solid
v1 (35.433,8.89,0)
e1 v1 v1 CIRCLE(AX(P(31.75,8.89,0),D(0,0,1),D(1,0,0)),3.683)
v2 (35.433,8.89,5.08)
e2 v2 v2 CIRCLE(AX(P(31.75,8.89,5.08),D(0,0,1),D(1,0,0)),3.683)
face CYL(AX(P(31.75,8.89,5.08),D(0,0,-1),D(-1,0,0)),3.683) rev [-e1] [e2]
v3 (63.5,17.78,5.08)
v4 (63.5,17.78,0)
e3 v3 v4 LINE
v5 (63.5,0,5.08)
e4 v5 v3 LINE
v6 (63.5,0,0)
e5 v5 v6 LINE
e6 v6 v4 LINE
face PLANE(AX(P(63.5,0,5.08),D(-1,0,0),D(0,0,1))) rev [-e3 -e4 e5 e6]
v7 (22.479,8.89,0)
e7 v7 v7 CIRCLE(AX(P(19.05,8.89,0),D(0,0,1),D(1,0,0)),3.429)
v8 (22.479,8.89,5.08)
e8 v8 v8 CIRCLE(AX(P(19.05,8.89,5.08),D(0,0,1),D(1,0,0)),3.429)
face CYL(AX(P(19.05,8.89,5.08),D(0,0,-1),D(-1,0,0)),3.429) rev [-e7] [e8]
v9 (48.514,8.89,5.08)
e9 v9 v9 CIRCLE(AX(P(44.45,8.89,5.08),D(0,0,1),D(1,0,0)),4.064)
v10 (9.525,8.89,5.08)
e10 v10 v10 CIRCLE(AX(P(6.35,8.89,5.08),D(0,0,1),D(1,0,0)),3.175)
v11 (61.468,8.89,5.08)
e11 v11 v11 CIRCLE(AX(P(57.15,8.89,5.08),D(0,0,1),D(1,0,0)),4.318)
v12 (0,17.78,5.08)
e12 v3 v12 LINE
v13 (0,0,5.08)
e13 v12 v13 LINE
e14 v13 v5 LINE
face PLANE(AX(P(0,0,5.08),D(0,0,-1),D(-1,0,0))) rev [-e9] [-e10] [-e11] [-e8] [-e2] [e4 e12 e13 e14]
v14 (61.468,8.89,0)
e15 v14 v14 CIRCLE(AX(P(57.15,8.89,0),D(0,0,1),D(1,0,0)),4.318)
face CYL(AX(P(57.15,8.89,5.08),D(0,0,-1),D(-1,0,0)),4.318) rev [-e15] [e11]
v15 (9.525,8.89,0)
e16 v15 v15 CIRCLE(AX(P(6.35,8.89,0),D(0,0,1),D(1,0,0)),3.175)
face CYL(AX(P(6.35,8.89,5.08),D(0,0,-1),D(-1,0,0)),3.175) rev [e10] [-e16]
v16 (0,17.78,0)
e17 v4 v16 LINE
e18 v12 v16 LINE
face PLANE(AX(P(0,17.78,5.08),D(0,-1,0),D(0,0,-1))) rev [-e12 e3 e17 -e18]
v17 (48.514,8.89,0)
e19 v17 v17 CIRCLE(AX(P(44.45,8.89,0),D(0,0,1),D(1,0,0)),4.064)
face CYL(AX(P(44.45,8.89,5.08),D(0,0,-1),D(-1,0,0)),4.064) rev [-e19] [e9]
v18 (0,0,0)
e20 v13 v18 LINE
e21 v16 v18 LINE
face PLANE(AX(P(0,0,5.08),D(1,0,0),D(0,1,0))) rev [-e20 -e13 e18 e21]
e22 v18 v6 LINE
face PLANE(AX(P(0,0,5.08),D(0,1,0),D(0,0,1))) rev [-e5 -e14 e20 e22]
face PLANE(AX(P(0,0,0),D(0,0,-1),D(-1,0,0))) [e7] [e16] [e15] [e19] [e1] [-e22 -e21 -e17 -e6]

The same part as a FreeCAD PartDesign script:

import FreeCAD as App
import Part
import Sketcher

V = App.Vector
Q = App.Units.Quantity


def add_polygon(sketch, points):
    """Adds a closed chain of lines whose ends are joined by coincident constraints."""
    first, n = sketch.GeometryCount, len(points)
    for a, b in zip(points, points[1:] + points[:1]):
        sketch.addGeometry(Part.LineSegment(App.Vector(*a, 0), App.Vector(*b, 0)), False)
    for i in range(n):
        sketch.addConstraint(Sketcher.Constraint("Coincident", first + i, 2, first + (i + 1) % n, 1))

doc = App.newDocument("Part")
body = doc.addObject("PartDesign::Body", "Body")

# Sketch on XY plane
sketch1 = doc.addObject("Sketcher::SketchObject", "Sketch")
body.addObject(sketch1)
sketch1.AttachmentSupport = (doc.XY_Plane, [""])
sketch1.MapMode = "FlatFace"
add_polygon(sketch1, [(0, 17.8), (0, 0), (63.5, 0), (63.5, 17.8)])  # lines 0-3
sketch1.addGeometry(Part.Circle(V(6.3, 8.9, 0), V(0, 0, 1), 3.2), False)  # 4
sketch1.addGeometry(Part.Circle(V(19.1, 8.9, 0), V(0, 0, 1), 3.4), False)  # 5
sketch1.addGeometry(Part.Circle(V(31.8, 8.9, 0), V(0, 0, 1), 3.7), False)  # 6
sketch1.addGeometry(Part.Circle(V(44.5, 8.9, 0), V(0, 0, 1), 4.1), False)  # 7
sketch1.addGeometry(Part.Circle(V(57.1, 8.9, 0), V(0, 0, 1), 4.3), False)  # 8
sketch1.addConstraint([
    Sketcher.Constraint("Vertical", 0),
    Sketcher.Constraint("Horizontal", 1),
    Sketcher.Constraint("Vertical", 2),
    Sketcher.Constraint("Horizontal", 3),
    Sketcher.Constraint("Coincident", 0, 2, -1, 1),
    Sketcher.Constraint("Horizontal", 4, 3, 5, 3),
    Sketcher.Constraint("Horizontal", 5, 3, 6, 3),
    Sketcher.Constraint("Horizontal", 6, 3, 7, 3),
    Sketcher.Constraint("Horizontal", 7, 3, 8, 3),
    Sketcher.Constraint("Diameter", 4, Q("0.25 in")),
    Sketcher.Constraint("Diameter", 5, Q("0.27 in")),
    Sketcher.Constraint("Diameter", 6, Q("0.29 in")),
    Sketcher.Constraint("Diameter", 7, Q("0.32 in")),
    Sketcher.Constraint("Diameter", 8, Q("0.34 in")),
    Sketcher.Constraint("DistanceX", 1, 1, 1, 2, Q("2.5 in")),
    Sketcher.Constraint("DistanceY", 0, 2, 0, 1, Q("0.7 in")),
    Sketcher.Constraint("DistanceX", 4, 3, 6, 3, Q("1 in")),
    Sketcher.Constraint("DistanceX", 5, 3, 7, 3, Q("1 in")),
    Sketcher.Constraint("DistanceX", 6, 3, 8, 3, Q("1 in")),
    Sketcher.Constraint("DistanceX", 4, 3, 5, 3, Q("0.5 in")),
    Sketcher.Constraint("DistanceX", -1, 1, 4, 3, Q("0.25 in")),
    Sketcher.Constraint("DistanceY", -1, 1, 4, 3, Q("0.35 in")),
])
pad1 = doc.addObject("PartDesign::Pad", "Pad")
body.addObject(pad1)
pad1.Profile = sketch1
pad1.Length = Q("0.2 in")

doc.recompute()
